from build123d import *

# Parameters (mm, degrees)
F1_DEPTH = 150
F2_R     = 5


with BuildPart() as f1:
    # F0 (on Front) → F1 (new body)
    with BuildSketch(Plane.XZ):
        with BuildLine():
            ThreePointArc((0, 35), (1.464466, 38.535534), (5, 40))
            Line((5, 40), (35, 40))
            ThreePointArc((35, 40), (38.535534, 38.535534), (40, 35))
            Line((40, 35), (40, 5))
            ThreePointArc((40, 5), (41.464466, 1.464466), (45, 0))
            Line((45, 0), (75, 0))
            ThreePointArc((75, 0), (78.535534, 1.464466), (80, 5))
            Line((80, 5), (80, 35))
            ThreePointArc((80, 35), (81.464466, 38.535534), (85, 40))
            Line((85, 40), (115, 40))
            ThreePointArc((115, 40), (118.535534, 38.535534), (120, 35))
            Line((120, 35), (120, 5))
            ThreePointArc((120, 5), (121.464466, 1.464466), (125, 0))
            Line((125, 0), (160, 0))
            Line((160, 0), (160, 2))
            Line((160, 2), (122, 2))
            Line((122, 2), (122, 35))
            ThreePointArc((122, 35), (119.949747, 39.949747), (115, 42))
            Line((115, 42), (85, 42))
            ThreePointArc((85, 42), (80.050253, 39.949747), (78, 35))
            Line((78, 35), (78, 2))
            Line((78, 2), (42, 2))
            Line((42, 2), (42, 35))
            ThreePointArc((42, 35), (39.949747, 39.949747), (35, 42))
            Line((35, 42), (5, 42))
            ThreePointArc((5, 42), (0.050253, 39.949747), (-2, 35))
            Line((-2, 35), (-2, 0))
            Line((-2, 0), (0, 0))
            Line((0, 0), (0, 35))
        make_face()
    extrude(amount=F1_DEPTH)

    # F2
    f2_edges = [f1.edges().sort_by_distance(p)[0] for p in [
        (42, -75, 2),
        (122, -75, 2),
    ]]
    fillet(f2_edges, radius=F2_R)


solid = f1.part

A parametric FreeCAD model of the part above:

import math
import FreeCAD as App
import Part
import Sketcher


def edges_at(feature, points):
    """Names of the edges that pass closest to the given points."""
    edges = feature.Shape.Edges
    near = lambda p: min(range(len(edges)), key=lambda i: edges[i].distToShape(Part.Vertex(*p))[0])
    return sorted({f"Edge{near(p) + 1}" for p in points})

doc = App.newDocument("Part")
body = doc.addObject("PartDesign::Body", "Body")

# Sketch on XZ plane
sketch1 = body.newObject("Sketcher::SketchObject", "Sketch")
sketch1.AttachmentSupport = (doc.getObject("XZ_Plane"), [""])
sketch1.MapMode = "FlatFace"
sketch1.addGeometry([
    Part.ArcOfCircle(Part.Circle(App.Vector(5, 35, 0), App.Vector(0, 0, 1), 5), math.radians(90), math.radians(180)),  # 0
    Part.LineSegment(App.Vector(5, 40, 0), App.Vector(35, 40, 0)),  # 1
    Part.ArcOfCircle(Part.Circle(App.Vector(35, 35, 0), App.Vector(0, 0, 1), 5), math.radians(0), math.radians(90)),  # 2
    Part.LineSegment(App.Vector(40, 35, 0), App.Vector(40, 5, 0)),  # 3
    Part.ArcOfCircle(Part.Circle(App.Vector(45, 5, 0), App.Vector(0, 0, 1), 5), math.radians(180), math.radians(270)),  # 4
    Part.LineSegment(App.Vector(45, 0, 0), App.Vector(75, 0, 0)),  # 5
    Part.ArcOfCircle(Part.Circle(App.Vector(75, 5, 0), App.Vector(0, 0, 1), 5), math.radians(-90), math.radians(0)),  # 6
    Part.LineSegment(App.Vector(80, 5, 0), App.Vector(80, 35, 0)),  # 7
    Part.ArcOfCircle(Part.Circle(App.Vector(85, 35, 0), App.Vector(0, 0, 1), 5), math.radians(90), math.radians(180)),  # 8
    Part.LineSegment(App.Vector(85, 40, 0), App.Vector(115, 40, 0)),  # 9
    Part.ArcOfCircle(Part.Circle(App.Vector(115, 35, 0), App.Vector(0, 0, 1), 5), math.radians(0), math.radians(90)),  # 10
    Part.LineSegment(App.Vector(120, 35, 0), App.Vector(120, 5, 0)),  # 11
    Part.ArcOfCircle(Part.Circle(App.Vector(125, 5, 0), App.Vector(0, 0, 1), 5), math.radians(180), math.radians(270)),  # 12
    Part.LineSegment(App.Vector(125, 0, 0), App.Vector(160, 0, 0)),  # 13
    Part.LineSegment(App.Vector(160, 0, 0), App.Vector(160, 2, 0)),  # 14
    Part.LineSegment(App.Vector(160, 2, 0), App.Vector(122, 2, 0)),  # 15
    Part.LineSegment(App.Vector(122, 2, 0), App.Vector(122, 35, 0)),  # 16
    Part.ArcOfCircle(Part.Circle(App.Vector(115, 35, 0), App.Vector(0, 0, 1), 7), math.radians(0), math.radians(90)),  # 17
    Part.LineSegment(App.Vector(115, 42, 0), App.Vector(85, 42, 0)),  # 18
    Part.ArcOfCircle(Part.Circle(App.Vector(85, 35, 0), App.Vector(0, 0, 1), 7), math.radians(90), math.radians(180)),  # 19
    Part.LineSegment(App.Vector(78, 35, 0), App.Vector(78, 2, 0)),  # 20
    Part.LineSegment(App.Vector(78, 2, 0), App.Vector(42, 2, 0)),  # 21
    Part.LineSegment(App.Vector(42, 2, 0), App.Vector(42, 35, 0)),  # 22
    Part.ArcOfCircle(Part.Circle(App.Vector(35, 35, 0), App.Vector(0, 0, 1), 7), math.radians(0), math.radians(90)),  # 23
    Part.LineSegment(App.Vector(35, 42, 0), App.Vector(5, 42, 0)),  # 24
    Part.ArcOfCircle(Part.Circle(App.Vector(5, 35, 0), App.Vector(0, 0, 1), 7), math.radians(90), math.radians(180)),  # 25
    Part.LineSegment(App.Vector(-2, 35, 0), App.Vector(-2, 0, 0)),  # 26
    Part.LineSegment(App.Vector(-2, 0, 0), App.Vector(0, 0, 0)),  # 27
    Part.LineSegment(App.Vector(0, 0, 0), App.Vector(0, 35, 0)),  # 28
], False)
sketch1.addConstraint([
    Sketcher.Constraint("Tangent", 0, 1, 1, 1),
    Sketcher.Constraint("Tangent", 1, 2, 2, 2),
    Sketcher.Constraint("Tangent", 2, 1, 3, 1),
    Sketcher.Constraint("Tangent", 3, 2, 4, 1),
    Sketcher.Constraint("Tangent", 4, 2, 5, 1),
    Sketcher.Constraint("Tangent", 5, 2, 6, 1),
    Sketcher.Constraint("Tangent", 6, 2, 7, 1),
    Sketcher.Constraint("Tangent", 7, 2, 8, 2),
    Sketcher.Constraint("Tangent", 8, 1, 9, 1),
    Sketcher.Constraint("Tangent", 9, 2, 10, 2),
    Sketcher.Constraint("Tangent", 10, 1, 11, 1),
    Sketcher.Constraint("Tangent", 11, 2, 12, 1),
    Sketcher.Constraint("Tangent", 12, 2, 13, 1),
    Sketcher.Constraint("Coincident", 13, 2, 14, 1),
    Sketcher.Constraint("Coincident", 14, 2, 15, 1),
    Sketcher.Constraint("Coincident", 15, 2, 16, 1),
    Sketcher.Constraint("Tangent", 16, 2, 17, 1),
    Sketcher.Constraint("Tangent", 17, 2, 18, 1),
    Sketcher.Constraint("Tangent", 18, 2, 19, 1),
    Sketcher.Constraint("Tangent", 19, 2, 20, 1),
    Sketcher.Constraint("Coincident", 20, 2, 21, 1),
    Sketcher.Constraint("Coincident", 21, 2, 22, 1),
    Sketcher.Constraint("Tangent", 22, 2, 23, 1),
    Sketcher.Constraint("Tangent", 23, 2, 24, 1),
    Sketcher.Constraint("Tangent", 24, 2, 25, 1),
    Sketcher.Constraint("Tangent", 25, 2, 26, 1),
    Sketcher.Constraint("Coincident", 26, 2, 27, 1),
    Sketcher.Constraint("Coincident", 27, 2, 28, 1),
    Sketcher.Constraint("Tangent", 28, 2, 0, 2),
    Sketcher.Constraint("Horizontal", 1),
    Sketcher.Constraint("Vertical", 3),
    Sketcher.Constraint("Horizontal", 5),
    Sketcher.Constraint("Vertical", 7),
    Sketcher.Constraint("Horizontal", 9),
    Sketcher.Constraint("Vertical", 11),
    Sketcher.Constraint("Horizontal", 13),
    Sketcher.Constraint("Vertical", 14),
    Sketcher.Constraint("Horizontal", 15),
    Sketcher.Constraint("Vertical", 16),
    Sketcher.Constraint("Horizontal", 18),
    Sketcher.Constraint("Vertical", 20),
    Sketcher.Constraint("Horizontal", 21),
    Sketcher.Constraint("Vertical", 22),
    Sketcher.Constraint("Horizontal", 24),
    Sketcher.Constraint("Vertical", 26),
    Sketcher.Constraint("Horizontal", 27),
    Sketcher.Constraint("Vertical", 28),
    Sketcher.Constraint("Coincident", 27, 2, -1, 1),
    Sketcher.Constraint("Coincident", 17, 3, 10, 3),
    Sketcher.Constraint("Coincident", 19, 3, 8, 3),
    Sketcher.Constraint("Coincident", 23, 3, 2, 3),
    Sketcher.Constraint("Coincident", 25, 3, 0, 3),
    Sketcher.Constraint("Equal", 0, 2),
    Sketcher.Constraint("Equal", 2, 4),
    Sketcher.Constraint("Equal", 4, 6),
    Sketcher.Constraint("Equal", 6, 8),
    Sketcher.Constraint("Equal", 8, 10),
    Sketcher.Constraint("Equal", 10, 12),
    Sketcher.Constraint("Equal", 19, 23),
    Sketcher.Constraint("PointOnObject", 4, 2, -1),
    Sketcher.Constraint("PointOnObject", 12, 2, -1),
    Sketcher.Constraint("Horizontal", 2, 3, 8, 3),
    Sketcher.Constraint("Horizontal", 15, 2, 20, 2),
    Sketcher.Constraint("Equal", 1, 5),
    Sketcher.Constraint("Equal", 5, 9),
    Sketcher.Constraint("Equal", 24, 3),
    Sketcher.Constraint("Equal", 27, 14),
    Sketcher.Constraint("Equal", 13, 26),
    Sketcher.Constraint("Radius", 0, 5.0),
    Sketcher.Constraint("Radius", 17, 7.000002),
    Sketcher.Constraint("DistanceX", 1, 1, 1, 2, 30.0),
])
pad1 = body.newObject("PartDesign::Pad", "Pad")
pad1.Profile = sketch1
pad1.Length = 150
doc.recompute()

fillet = body.newObject("PartDesign::Fillet", "Fillet")
fillet.Base = (pad1, edges_at(pad1, [(42, -75, 2), (122, -75, 2)]))
fillet.Radius = 5

doc.recompute()
